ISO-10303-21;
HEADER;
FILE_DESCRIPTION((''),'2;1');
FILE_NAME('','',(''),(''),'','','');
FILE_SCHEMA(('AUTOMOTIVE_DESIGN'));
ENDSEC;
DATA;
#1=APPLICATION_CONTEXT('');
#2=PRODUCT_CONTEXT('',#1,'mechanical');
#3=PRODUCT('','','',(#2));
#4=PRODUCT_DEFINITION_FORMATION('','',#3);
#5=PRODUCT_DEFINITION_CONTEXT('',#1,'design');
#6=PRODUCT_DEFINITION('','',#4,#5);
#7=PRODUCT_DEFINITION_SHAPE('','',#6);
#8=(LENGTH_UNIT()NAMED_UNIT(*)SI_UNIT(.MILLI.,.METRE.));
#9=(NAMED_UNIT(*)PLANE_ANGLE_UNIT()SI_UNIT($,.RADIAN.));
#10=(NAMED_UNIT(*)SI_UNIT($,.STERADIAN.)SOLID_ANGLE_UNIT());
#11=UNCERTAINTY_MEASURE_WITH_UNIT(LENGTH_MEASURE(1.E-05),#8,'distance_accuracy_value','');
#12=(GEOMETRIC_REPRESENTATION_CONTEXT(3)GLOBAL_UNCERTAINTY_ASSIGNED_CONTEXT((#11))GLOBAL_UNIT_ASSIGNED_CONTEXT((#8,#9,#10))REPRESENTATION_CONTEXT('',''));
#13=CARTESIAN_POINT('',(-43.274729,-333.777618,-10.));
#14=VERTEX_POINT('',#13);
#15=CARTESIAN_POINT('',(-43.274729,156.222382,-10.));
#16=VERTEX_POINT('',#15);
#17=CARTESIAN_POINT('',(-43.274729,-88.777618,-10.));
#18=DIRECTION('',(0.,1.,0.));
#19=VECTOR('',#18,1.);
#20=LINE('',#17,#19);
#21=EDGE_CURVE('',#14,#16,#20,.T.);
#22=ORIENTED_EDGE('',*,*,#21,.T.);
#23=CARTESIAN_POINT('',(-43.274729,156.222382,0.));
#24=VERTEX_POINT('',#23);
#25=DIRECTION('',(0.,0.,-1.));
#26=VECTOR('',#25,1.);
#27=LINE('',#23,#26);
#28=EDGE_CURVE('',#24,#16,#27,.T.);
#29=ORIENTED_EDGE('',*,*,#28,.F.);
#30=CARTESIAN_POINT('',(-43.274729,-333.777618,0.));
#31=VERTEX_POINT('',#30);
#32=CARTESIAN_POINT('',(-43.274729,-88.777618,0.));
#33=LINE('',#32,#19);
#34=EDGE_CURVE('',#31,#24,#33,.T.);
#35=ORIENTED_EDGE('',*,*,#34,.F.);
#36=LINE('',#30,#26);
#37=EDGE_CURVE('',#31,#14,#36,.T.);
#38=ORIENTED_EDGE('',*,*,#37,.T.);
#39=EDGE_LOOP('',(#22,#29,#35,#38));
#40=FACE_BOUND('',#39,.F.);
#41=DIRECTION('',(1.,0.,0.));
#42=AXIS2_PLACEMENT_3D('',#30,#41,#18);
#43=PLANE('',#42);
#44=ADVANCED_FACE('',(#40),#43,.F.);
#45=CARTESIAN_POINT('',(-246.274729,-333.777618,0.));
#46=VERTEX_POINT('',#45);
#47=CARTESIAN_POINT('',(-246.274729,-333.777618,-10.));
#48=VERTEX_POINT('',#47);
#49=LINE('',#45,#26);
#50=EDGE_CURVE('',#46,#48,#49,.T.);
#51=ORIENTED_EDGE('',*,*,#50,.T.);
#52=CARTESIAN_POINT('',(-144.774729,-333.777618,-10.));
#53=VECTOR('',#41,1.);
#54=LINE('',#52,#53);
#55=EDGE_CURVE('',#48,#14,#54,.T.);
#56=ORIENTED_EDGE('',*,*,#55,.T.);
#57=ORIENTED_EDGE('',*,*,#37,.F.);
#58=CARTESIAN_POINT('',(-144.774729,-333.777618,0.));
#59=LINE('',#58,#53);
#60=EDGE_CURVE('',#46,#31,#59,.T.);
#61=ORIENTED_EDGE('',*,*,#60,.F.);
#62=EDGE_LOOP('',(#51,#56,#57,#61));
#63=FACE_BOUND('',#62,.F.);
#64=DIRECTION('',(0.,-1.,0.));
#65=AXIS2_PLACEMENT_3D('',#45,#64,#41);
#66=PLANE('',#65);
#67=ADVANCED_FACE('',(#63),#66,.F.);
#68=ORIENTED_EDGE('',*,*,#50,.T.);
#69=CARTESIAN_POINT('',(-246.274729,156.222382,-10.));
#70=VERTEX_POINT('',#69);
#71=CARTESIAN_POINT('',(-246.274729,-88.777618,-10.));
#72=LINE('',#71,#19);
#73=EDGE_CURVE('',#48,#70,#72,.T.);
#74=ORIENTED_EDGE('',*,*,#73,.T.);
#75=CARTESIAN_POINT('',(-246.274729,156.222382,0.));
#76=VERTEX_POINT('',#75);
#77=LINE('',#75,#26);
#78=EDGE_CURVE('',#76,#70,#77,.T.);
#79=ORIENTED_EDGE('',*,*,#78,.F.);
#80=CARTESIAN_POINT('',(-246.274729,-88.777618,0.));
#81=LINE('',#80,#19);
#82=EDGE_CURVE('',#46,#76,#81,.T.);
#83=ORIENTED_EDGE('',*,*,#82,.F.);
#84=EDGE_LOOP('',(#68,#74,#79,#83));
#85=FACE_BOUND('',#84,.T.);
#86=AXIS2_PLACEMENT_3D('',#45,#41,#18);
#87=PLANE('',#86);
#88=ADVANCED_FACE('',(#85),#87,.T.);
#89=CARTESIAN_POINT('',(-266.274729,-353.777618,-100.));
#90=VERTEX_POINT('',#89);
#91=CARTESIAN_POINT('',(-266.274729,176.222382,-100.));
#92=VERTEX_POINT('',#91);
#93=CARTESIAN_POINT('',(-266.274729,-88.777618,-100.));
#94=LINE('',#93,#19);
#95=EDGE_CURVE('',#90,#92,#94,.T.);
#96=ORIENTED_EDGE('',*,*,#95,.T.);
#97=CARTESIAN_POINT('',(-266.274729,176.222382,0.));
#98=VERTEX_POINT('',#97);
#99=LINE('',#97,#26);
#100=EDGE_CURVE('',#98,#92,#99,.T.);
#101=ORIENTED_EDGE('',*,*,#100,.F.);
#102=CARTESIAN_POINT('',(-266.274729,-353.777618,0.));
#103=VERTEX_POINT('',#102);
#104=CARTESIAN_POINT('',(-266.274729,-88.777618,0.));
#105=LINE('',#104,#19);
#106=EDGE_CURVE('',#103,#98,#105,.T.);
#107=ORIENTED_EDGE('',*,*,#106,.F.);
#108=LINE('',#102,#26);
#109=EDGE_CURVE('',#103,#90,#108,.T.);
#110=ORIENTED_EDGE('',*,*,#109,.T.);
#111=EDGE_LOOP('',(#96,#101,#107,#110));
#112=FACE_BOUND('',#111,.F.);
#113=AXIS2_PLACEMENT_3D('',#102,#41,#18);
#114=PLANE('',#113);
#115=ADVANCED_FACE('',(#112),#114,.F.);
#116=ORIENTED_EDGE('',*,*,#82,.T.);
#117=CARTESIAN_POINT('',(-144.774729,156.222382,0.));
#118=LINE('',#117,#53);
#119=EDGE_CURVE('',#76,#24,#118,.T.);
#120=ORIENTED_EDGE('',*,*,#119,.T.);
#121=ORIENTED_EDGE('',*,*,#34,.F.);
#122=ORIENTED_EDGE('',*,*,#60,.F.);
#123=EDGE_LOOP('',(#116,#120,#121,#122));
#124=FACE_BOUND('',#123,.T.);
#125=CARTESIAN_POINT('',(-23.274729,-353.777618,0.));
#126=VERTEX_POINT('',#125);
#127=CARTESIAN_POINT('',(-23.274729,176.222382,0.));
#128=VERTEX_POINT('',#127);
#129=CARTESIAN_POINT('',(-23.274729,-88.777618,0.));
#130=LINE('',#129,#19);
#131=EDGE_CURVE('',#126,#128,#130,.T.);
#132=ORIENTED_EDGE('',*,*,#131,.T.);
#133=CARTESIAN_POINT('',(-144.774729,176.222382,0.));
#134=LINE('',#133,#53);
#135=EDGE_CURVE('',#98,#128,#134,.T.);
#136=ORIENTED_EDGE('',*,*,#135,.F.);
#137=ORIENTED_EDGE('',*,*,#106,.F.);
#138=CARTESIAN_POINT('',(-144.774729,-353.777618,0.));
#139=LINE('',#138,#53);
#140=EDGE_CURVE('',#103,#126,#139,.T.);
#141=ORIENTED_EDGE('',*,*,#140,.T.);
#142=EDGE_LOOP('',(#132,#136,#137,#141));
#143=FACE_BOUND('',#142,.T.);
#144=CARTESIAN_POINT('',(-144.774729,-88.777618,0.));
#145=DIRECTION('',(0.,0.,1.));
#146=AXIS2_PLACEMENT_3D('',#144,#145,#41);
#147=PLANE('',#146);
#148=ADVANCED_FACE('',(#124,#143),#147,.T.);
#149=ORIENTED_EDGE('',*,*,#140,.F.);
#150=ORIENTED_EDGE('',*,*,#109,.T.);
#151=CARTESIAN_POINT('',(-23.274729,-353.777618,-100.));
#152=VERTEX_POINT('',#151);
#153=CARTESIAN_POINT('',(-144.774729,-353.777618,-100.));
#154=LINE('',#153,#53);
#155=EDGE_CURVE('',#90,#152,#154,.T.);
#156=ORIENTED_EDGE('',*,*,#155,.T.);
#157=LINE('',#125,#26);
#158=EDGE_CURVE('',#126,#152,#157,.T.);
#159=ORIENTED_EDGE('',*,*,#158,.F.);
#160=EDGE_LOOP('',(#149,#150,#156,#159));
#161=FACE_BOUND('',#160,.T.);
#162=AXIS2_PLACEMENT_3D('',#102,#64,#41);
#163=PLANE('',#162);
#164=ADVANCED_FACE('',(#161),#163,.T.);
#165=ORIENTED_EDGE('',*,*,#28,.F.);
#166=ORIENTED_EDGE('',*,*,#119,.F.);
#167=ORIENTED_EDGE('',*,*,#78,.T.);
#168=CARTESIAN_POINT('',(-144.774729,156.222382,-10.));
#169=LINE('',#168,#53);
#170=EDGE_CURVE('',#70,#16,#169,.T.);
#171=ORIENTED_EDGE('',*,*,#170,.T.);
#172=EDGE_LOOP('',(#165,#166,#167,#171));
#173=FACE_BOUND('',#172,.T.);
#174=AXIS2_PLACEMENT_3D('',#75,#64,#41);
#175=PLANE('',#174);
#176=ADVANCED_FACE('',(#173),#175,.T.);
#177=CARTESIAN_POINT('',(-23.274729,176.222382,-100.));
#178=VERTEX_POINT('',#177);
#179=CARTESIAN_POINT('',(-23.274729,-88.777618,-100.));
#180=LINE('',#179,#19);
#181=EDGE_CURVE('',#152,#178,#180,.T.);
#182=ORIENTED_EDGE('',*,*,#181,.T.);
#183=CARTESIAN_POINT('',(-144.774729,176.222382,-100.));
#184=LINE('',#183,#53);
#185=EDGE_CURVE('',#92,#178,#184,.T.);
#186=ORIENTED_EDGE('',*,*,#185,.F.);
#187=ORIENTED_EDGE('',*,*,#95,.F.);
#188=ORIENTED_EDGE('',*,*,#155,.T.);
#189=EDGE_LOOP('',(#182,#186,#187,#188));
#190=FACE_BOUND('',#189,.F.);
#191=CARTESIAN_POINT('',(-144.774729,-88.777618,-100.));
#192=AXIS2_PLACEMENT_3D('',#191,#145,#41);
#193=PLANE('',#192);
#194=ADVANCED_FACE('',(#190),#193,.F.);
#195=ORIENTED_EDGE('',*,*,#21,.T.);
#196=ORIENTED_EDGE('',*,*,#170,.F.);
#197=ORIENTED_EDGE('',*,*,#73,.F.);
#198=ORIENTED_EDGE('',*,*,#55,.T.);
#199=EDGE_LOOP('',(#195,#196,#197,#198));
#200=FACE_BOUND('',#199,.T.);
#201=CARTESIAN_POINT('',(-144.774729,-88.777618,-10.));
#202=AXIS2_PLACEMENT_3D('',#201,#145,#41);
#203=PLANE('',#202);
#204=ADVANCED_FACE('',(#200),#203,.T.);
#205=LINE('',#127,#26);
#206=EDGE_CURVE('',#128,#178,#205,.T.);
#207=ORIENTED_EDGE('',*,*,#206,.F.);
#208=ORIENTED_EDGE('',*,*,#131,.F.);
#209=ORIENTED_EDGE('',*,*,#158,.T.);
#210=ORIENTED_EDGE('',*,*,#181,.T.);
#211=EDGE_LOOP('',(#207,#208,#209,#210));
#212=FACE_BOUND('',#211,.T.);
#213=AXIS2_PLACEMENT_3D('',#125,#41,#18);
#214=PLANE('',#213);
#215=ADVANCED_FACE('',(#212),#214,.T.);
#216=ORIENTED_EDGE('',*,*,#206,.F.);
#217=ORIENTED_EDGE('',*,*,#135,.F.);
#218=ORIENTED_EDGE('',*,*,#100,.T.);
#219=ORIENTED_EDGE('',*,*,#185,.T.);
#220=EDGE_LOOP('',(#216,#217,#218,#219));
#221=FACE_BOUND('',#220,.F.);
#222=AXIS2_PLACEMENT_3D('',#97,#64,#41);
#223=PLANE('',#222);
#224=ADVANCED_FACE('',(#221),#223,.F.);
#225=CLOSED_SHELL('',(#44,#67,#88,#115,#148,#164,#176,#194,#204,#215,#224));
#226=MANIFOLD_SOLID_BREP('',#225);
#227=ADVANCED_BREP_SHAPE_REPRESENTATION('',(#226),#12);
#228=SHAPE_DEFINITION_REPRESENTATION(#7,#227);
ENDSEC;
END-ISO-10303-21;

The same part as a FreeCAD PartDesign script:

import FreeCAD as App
import Part
import Sketcher
Q = App.Units.Quantity


def add_polygon(sketch, points):
    """Adds a closed chain of lines whose ends are joined by coincident constraints."""
    first, n = sketch.GeometryCount, len(points)
    for a, b in zip(points, points[1:] + points[:1]):
        sketch.addGeometry(Part.LineSegment(App.Vector(*a, 0), App.Vector(*b, 0)), False)
    for i in range(n):
        sketch.addConstraint(Sketcher.Constraint("Coincident", first + i, 2, first + (i + 1) % n, 1))

doc = App.newDocument("Part")
params = doc.addObject("Spreadsheet::Sheet", "Params")
for row, (alias, value) in enumerate([
    ("sketch1_width", "243 mm"),
    ("sketch1_height", "530 mm"),
    ("pad1_length", "100 mm"),
    ("sketch2_width", "203 mm"),
    ("sketch2_height", "490 mm"),
    ("pocket1_length", "10 mm"),
], start=1):
    params.set(f"A{row}", alias)
    params.set(f"B{row}", "=" + value)
    params.setAlias(f"B{row}", alias)

body = doc.addObject("PartDesign::Body", "Body")

sketch1 = doc.addObject("Sketcher::SketchObject", "Sketch")
body.addObject(sketch1)
sketch1.AttachmentSupport = (doc.XY_Plane, [""])
sketch1.MapMode = "FlatFace"
add_polygon(sketch1, [(-266, 176), (-266, -354), (-23, -354), (-23, 176)])
sketch1.addConstraint([
    Sketcher.Constraint("Vertical", 0),
    Sketcher.Constraint("Horizontal", 1),
    Sketcher.Constraint("Vertical", 2),
    Sketcher.Constraint("Horizontal", 3),
    Sketcher.Constraint("DistanceX", 1, 1, 1, 2, Q("243 mm")),
    Sketcher.Constraint("DistanceY", 0, 2, 0, 1, Q("530 mm")),
    Sketcher.Constraint("DistanceX", 0, 2, -1, 1, Q("266.274729 mm")),
    Sketcher.Constraint("DistanceY", 0, 2, -1, 1, Q("353.777618 mm")),
])
sketch1.setExpression("Constraints[8]", "Params.sketch1_width")
sketch1.setExpression("Constraints[9]", "Params.sketch1_height")
pad1 = doc.addObject("PartDesign::Pad", "Pad")
body.addObject(pad1)
pad1.Profile = sketch1
pad1.setExpression("Length", "Params.pad1_length")
pad1.Reversed = True

sketch2 = doc.addObject("Sketcher::SketchObject", "Sketch001")
body.addObject(sketch2)
sketch2.AttachmentSupport = (doc.XY_Plane, [""])
sketch2.MapMode = "FlatFace"
add_polygon(sketch2, [(-246, 156), (-246, -334), (-43, -334), (-43, 156)])
sketch2.addConstraint([
    Sketcher.Constraint("Vertical", 0),
    Sketcher.Constraint("Horizontal", 1),
    Sketcher.Constraint("Vertical", 2),
    Sketcher.Constraint("Horizontal", 3),
    Sketcher.Constraint("DistanceX", 1, 1, 1, 2, Q("203 mm")),
    Sketcher.Constraint("DistanceY", 0, 2, 0, 1, Q("490 mm")),
    Sketcher.Constraint("DistanceX", 0, 2, -1, 1, Q("246.274729 mm")),
    Sketcher.Constraint("DistanceY", 0, 2, -1, 1, Q("333.777618 mm")),
])
sketch2.setExpression("Constraints[8]", "Params.sketch2_width")
sketch2.setExpression("Constraints[9]", "Params.sketch2_height")
pocket1 = doc.addObject("PartDesign::Pocket", "Pocket")
body.addObject(pocket1)
pocket1.Profile = sketch2
pocket1.setExpression("Length", "Params.pocket1_length")

doc.recompute()
